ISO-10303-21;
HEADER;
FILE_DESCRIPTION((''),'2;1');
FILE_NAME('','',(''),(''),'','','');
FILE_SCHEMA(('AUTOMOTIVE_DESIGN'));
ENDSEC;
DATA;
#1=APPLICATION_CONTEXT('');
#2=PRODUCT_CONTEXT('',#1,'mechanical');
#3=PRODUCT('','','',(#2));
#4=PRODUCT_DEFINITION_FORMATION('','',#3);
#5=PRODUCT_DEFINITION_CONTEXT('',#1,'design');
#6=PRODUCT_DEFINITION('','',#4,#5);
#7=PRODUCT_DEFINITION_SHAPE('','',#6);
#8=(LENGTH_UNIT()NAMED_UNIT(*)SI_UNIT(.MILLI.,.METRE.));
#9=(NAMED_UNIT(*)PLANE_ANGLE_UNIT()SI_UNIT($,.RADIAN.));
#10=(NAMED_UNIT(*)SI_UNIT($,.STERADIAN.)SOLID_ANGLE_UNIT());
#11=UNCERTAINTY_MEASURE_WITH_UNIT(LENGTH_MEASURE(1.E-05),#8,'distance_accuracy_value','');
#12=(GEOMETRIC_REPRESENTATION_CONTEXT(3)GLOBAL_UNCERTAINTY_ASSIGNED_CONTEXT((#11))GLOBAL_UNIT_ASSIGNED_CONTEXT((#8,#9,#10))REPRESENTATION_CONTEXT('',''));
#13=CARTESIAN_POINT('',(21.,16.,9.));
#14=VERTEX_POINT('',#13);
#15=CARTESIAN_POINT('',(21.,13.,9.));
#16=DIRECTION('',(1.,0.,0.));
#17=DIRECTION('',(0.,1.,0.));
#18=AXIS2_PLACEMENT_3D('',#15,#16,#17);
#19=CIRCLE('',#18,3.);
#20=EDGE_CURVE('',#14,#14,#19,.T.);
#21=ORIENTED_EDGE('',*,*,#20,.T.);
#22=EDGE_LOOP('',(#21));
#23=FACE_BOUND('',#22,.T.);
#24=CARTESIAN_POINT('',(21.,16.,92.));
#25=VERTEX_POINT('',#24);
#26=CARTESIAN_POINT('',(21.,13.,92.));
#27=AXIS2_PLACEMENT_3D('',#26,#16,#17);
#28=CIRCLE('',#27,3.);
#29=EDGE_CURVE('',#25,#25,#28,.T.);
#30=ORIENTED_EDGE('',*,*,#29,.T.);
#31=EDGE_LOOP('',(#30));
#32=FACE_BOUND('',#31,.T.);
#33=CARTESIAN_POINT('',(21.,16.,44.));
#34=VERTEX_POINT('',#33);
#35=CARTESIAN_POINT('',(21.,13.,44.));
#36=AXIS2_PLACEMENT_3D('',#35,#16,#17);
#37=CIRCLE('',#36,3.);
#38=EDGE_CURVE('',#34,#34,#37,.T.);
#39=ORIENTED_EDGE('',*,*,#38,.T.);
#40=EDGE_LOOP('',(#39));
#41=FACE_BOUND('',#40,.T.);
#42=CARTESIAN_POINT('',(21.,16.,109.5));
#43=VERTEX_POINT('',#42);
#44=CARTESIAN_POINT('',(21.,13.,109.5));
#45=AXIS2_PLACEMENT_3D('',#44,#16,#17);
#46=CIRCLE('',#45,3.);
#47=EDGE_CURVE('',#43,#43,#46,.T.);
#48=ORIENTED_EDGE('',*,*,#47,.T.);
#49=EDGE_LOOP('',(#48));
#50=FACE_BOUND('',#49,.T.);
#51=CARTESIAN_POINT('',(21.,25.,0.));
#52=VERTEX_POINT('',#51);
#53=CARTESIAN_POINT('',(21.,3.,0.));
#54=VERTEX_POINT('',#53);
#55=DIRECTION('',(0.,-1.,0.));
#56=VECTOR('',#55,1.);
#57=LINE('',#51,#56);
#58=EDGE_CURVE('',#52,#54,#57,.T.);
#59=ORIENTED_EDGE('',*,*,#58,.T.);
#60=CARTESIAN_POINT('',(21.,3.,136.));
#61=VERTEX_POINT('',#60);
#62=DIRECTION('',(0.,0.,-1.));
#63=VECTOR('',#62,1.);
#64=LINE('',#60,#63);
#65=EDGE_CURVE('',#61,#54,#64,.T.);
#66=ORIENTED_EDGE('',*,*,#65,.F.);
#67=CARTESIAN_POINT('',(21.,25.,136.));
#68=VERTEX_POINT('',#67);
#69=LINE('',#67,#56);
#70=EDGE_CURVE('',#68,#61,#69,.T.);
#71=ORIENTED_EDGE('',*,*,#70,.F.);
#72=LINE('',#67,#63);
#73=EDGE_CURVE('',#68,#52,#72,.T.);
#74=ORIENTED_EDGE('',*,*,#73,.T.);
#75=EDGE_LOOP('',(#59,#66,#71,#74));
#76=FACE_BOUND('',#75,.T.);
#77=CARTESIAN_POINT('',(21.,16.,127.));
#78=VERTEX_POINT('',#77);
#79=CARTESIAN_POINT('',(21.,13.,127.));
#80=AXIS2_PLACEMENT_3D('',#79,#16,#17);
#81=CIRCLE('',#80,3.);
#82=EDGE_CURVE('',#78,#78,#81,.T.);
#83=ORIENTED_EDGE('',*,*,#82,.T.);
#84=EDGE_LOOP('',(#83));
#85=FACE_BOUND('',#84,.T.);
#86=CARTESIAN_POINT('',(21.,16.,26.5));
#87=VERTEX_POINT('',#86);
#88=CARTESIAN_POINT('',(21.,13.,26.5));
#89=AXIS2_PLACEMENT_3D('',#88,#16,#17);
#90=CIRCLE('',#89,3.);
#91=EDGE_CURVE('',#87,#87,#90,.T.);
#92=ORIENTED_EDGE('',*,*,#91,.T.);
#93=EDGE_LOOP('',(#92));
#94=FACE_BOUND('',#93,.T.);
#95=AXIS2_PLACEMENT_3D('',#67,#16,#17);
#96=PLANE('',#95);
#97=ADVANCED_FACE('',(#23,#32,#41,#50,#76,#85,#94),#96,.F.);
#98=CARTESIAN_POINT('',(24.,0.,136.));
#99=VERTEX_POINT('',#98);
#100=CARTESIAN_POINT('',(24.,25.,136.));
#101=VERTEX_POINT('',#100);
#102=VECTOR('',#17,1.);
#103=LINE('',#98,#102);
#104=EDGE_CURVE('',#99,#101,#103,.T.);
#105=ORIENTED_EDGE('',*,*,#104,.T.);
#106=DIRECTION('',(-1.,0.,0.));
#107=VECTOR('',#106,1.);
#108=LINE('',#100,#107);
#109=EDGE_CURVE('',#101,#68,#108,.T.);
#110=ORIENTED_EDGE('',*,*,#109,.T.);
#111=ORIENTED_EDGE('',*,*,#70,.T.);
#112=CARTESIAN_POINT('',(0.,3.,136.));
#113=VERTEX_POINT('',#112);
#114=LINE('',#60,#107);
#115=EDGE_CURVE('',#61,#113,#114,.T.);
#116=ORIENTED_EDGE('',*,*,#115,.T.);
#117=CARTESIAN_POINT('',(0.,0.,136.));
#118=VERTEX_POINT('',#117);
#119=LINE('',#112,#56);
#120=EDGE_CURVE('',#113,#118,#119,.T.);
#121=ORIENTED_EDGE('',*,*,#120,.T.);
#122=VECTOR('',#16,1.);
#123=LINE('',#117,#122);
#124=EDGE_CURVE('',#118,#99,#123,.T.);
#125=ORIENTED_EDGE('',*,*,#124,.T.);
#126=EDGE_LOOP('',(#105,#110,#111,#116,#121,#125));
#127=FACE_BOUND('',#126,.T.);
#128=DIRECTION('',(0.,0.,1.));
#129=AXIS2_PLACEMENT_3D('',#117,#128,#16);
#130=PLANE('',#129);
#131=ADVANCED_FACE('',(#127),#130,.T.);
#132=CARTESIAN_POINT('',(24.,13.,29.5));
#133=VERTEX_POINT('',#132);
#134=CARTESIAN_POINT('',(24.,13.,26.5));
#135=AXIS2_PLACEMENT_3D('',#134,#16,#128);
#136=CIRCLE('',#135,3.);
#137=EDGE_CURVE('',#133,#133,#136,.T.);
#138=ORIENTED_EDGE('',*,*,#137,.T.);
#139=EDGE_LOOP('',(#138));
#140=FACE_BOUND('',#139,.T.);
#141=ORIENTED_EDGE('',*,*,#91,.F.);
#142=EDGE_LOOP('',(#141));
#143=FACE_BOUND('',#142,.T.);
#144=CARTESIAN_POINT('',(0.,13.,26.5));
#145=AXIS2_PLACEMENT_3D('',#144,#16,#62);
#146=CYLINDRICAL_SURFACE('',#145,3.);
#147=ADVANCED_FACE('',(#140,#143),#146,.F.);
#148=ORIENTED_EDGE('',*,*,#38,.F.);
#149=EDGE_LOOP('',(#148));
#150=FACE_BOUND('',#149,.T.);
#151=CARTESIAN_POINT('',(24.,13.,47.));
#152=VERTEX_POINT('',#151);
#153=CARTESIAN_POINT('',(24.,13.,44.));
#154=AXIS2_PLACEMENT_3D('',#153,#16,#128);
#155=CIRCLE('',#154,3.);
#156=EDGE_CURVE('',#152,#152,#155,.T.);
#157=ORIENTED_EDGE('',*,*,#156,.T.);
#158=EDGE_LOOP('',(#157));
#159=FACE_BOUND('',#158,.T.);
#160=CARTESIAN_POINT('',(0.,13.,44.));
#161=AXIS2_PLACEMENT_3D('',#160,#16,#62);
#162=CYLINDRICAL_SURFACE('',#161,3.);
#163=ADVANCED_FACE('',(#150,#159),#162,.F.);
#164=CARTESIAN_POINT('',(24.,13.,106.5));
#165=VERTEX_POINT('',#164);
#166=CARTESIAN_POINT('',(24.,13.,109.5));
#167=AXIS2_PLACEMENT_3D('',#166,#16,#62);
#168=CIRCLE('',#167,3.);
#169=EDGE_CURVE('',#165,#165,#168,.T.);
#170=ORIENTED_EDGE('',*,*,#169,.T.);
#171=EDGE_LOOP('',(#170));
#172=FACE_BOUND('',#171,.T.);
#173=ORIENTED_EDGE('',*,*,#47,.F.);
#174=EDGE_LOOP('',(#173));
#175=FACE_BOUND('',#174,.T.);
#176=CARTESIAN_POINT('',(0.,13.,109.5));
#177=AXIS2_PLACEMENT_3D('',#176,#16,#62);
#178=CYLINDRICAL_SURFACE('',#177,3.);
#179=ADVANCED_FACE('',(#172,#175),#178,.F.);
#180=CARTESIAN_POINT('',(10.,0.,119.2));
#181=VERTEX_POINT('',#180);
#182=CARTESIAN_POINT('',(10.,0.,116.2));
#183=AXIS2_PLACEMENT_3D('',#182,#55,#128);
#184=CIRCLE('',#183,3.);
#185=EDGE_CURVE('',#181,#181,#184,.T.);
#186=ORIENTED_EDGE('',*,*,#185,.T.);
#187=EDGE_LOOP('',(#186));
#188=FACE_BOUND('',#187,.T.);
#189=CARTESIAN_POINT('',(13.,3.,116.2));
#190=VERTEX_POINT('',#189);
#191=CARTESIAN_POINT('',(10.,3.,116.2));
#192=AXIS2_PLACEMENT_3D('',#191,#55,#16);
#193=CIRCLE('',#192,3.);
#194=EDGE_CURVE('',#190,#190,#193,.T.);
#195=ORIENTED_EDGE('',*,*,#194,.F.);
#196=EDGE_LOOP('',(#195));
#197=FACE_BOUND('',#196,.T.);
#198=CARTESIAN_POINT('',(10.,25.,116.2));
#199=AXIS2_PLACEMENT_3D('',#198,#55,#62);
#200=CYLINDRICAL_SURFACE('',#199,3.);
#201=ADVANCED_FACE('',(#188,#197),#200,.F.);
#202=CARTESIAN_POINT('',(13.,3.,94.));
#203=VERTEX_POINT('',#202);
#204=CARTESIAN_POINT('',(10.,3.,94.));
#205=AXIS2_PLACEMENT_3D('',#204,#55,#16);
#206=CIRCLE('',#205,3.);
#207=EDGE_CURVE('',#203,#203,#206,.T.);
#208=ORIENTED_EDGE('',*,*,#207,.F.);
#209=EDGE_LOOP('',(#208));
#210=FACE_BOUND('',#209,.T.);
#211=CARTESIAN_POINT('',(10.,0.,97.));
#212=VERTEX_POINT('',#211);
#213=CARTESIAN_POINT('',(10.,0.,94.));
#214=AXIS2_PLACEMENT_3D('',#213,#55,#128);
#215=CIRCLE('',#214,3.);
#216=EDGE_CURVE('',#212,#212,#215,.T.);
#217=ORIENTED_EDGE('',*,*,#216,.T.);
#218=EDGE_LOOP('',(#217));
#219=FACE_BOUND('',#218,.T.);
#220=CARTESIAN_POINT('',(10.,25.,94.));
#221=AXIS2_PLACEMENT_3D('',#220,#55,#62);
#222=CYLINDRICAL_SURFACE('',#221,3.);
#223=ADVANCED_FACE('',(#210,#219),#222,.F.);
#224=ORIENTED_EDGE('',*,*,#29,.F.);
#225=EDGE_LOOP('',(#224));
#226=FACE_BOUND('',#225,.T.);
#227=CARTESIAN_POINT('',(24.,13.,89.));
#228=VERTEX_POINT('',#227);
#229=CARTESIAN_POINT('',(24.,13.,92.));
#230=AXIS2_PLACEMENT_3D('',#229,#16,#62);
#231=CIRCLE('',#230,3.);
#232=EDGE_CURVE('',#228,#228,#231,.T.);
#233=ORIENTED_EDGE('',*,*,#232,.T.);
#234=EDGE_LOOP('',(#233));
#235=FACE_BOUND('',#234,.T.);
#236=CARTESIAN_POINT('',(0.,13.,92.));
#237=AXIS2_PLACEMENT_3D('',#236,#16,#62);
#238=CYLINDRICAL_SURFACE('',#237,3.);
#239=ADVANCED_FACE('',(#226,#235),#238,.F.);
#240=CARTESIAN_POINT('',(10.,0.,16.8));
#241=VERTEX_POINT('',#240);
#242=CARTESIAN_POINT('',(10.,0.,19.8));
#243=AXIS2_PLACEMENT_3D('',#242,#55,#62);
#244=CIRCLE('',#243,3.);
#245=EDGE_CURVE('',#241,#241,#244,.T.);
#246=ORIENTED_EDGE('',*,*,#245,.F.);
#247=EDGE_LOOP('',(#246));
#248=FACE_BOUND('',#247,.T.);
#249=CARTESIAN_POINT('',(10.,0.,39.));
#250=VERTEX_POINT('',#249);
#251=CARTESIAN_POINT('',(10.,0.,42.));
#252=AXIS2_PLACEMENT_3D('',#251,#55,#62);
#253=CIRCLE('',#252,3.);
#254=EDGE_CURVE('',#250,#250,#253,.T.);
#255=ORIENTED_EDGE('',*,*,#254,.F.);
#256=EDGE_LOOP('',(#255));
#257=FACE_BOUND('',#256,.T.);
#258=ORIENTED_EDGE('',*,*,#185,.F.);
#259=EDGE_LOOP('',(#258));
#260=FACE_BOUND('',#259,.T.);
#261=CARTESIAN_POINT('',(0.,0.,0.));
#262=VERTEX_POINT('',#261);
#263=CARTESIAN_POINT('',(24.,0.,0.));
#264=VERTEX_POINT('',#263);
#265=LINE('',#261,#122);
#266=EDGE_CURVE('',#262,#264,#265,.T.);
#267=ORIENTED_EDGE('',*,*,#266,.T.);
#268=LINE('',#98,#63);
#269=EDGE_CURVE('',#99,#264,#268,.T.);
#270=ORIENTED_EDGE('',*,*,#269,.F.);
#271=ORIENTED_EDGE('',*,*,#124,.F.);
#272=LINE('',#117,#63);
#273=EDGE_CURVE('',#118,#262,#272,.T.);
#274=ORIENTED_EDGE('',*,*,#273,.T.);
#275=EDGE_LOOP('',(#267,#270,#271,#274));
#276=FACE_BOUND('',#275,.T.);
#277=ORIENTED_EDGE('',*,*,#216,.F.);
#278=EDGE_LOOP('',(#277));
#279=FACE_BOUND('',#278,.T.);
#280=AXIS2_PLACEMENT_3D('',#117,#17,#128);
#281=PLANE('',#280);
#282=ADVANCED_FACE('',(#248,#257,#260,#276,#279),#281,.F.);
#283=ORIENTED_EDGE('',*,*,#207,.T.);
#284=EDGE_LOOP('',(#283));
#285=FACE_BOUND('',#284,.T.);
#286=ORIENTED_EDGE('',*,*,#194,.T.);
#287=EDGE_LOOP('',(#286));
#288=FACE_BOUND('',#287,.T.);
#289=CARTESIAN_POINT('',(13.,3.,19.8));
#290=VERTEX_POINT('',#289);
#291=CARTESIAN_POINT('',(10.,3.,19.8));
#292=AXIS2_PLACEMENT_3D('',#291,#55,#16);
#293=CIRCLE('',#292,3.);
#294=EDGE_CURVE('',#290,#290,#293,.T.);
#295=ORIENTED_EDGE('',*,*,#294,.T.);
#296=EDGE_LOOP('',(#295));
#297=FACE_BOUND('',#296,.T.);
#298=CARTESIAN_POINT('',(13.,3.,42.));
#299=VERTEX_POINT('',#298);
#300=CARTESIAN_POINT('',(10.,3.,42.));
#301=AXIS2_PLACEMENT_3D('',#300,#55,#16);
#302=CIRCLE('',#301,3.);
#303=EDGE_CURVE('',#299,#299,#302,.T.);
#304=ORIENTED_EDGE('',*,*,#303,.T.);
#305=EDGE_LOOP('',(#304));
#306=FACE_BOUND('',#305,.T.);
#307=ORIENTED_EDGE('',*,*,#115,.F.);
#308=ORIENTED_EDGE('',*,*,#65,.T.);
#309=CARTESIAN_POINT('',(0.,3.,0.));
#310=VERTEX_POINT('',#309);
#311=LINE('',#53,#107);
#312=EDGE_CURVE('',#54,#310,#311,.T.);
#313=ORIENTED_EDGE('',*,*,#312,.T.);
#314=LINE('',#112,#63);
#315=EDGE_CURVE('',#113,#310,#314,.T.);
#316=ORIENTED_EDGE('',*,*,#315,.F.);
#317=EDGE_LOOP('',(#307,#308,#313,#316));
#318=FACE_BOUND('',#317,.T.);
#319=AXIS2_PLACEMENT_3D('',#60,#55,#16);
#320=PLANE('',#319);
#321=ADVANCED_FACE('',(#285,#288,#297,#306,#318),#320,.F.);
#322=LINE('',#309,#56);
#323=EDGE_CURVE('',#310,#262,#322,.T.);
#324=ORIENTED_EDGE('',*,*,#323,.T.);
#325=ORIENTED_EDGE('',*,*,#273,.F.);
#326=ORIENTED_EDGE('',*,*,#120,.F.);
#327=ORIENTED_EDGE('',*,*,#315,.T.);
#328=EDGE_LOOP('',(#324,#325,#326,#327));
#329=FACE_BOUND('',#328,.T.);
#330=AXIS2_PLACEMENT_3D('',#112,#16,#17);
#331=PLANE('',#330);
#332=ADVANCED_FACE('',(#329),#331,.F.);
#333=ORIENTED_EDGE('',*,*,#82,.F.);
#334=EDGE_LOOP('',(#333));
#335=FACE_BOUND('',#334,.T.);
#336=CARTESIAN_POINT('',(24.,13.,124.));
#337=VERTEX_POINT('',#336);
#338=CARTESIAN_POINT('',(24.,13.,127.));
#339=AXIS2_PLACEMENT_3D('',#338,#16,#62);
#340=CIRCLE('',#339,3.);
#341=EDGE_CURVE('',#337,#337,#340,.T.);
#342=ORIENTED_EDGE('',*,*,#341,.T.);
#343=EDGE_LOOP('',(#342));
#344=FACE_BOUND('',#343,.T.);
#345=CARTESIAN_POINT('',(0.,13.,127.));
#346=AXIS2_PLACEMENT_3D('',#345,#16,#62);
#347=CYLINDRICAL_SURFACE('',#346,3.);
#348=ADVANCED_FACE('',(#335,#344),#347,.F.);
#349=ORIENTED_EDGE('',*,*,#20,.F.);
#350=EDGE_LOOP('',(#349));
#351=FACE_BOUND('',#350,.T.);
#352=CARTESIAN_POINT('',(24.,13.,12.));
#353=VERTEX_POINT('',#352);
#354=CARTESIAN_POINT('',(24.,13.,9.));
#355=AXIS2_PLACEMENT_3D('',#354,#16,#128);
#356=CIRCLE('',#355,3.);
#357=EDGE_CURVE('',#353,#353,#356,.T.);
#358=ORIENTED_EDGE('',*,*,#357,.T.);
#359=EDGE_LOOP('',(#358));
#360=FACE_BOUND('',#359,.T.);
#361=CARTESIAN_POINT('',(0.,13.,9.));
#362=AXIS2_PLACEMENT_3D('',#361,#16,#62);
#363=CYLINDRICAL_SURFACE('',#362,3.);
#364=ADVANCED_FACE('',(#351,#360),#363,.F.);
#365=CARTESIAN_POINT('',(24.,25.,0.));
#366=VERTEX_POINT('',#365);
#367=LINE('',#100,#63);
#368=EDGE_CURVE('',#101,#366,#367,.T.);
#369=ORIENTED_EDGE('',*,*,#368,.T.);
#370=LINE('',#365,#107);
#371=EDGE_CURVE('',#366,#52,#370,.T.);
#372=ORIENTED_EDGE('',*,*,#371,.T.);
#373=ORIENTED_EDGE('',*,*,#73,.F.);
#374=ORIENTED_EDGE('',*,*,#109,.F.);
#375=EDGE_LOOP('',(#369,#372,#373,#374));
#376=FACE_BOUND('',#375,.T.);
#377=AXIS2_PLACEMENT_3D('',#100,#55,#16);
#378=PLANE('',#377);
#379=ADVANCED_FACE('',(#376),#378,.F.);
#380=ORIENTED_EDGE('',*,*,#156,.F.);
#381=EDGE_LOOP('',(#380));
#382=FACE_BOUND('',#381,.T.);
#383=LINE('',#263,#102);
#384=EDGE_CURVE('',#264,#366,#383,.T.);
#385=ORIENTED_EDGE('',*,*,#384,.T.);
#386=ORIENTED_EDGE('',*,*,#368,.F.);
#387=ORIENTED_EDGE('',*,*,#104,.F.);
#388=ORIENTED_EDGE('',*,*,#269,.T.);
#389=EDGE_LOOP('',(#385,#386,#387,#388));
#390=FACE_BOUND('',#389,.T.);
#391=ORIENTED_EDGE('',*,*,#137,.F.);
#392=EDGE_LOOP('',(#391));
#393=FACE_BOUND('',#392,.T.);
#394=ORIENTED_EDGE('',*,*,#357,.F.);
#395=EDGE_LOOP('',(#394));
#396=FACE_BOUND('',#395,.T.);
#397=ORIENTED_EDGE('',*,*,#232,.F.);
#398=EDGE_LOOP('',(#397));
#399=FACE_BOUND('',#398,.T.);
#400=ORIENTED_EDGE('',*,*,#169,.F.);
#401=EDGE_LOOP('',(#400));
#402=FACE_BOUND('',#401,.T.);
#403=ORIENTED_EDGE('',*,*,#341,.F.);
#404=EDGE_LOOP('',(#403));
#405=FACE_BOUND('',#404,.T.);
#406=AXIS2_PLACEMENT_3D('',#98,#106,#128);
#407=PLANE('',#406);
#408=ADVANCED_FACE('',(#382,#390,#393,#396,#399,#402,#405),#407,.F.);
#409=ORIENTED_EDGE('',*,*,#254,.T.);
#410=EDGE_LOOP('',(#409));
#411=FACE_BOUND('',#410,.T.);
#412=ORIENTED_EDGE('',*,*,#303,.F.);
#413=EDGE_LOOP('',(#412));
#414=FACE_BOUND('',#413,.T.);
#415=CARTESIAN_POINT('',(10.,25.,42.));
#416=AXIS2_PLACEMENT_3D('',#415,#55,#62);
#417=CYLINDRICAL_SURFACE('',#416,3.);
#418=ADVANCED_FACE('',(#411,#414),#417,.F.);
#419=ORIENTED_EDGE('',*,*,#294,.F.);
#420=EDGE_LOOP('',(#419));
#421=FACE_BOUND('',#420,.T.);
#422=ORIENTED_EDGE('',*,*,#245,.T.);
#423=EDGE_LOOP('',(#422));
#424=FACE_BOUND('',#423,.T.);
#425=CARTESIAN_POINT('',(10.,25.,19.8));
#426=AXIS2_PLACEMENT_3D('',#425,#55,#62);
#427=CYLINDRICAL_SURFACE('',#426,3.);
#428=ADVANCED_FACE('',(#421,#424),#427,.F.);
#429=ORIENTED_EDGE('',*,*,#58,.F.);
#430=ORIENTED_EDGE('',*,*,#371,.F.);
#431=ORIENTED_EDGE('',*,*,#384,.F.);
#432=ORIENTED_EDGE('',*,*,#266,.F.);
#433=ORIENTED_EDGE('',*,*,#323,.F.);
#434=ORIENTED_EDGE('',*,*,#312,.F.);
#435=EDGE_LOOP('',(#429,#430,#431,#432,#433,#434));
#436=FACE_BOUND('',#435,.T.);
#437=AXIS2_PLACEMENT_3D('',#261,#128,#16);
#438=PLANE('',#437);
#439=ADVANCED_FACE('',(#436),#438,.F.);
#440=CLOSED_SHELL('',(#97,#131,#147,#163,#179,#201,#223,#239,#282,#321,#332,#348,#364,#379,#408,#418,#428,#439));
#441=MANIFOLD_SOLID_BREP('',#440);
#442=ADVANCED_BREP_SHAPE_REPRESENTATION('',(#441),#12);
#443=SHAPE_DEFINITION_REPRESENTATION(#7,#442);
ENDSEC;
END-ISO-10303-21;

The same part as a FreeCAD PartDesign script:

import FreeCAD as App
import Part
import Sketcher
from FreeCAD import Vector

doc = App.newDocument("Part")
params = doc.addObject("Spreadsheet::Sheet", "Params")
for row, (alias, value) in enumerate([
    ("sketch1_width", "24 mm"),
    ("sketch1_width2", "3 mm"),
    ("sketch1_height", "25 mm"),
    ("pad1_length", "136 mm"),
    ("sketch2_diameter", "6 mm"),
    ("sketch3_diameter", "6 mm"),
], start=1):
    params.set(f"A{row}", alias)
    params.set(f"B{row}", "=" + value)
    params.setAlias(f"B{row}", alias)

body = doc.addObject("PartDesign::Body", "Body")

# Sketch on XY plane
sketch1 = body.newObject("Sketcher::SketchObject", "Sketch")
sketch1.AttachmentSupport = (doc.getObject("XY_Plane"), [""])
sketch1.MapMode = "FlatFace"
sketch1.addGeometry(Part.LineSegment(Vector(0, 0, 0), Vector(24, 0, 0)), False)
sketch1.addGeometry(Part.LineSegment(Vector(24, 0, 0), Vector(24, 25, 0)), False)
sketch1.addGeometry(Part.LineSegment(Vector(24, 25, 0), Vector(21, 25, 0)), False)
sketch1.addGeometry(Part.LineSegment(Vector(21, 25, 0), Vector(21, 3, 0)), False)
sketch1.addGeometry(Part.LineSegment(Vector(21, 3, 0), Vector(0, 3, 0)), False)
sketch1.addGeometry(Part.LineSegment(Vector(0, 3, 0), Vector(0, 0, 0)), False)
sketch1.addConstraint(Sketcher.Constraint("Coincident", 0, 2, 1, 1))
sketch1.addConstraint(Sketcher.Constraint("Coincident", 1, 2, 2, 1))
sketch1.addConstraint(Sketcher.Constraint("Coincident", 2, 2, 3, 1))
sketch1.addConstraint(Sketcher.Constraint("Coincident", 3, 2, 4, 1))
sketch1.addConstraint(Sketcher.Constraint("Coincident", 4, 2, 5, 1))
sketch1.addConstraint(Sketcher.Constraint("Coincident", 5, 2, 0, 1))
sketch1.addConstraint(Sketcher.Constraint("Horizontal", 0))
sketch1.addConstraint(Sketcher.Constraint("Vertical", 1))
sketch1.addConstraint(Sketcher.Constraint("Horizontal", 2))
sketch1.addConstraint(Sketcher.Constraint("Vertical", 3))
sketch1.addConstraint(Sketcher.Constraint("Horizontal", 4))
sketch1.addConstraint(Sketcher.Constraint("Vertical", 5))
sketch1.addConstraint(Sketcher.Constraint("Coincident", 5, 2, -1, 1))
sketch1.addConstraint(Sketcher.Constraint("Equal", 2, 5))
sketch1.addConstraint(Sketcher.Constraint("DistanceX", 0, 1, 0, 2, 24.0))
sketch1.addConstraint(Sketcher.Constraint("DistanceX", 2, 2, 2, 1, 3.0))
sketch1.addConstraint(Sketcher.Constraint("DistanceY", 1, 1, 1, 2, 25.0))
sketch1.setExpression("Constraints[14]", "Params.sketch1_width")
sketch1.setExpression("Constraints[15]", "Params.sketch1_width2")
sketch1.setExpression("Constraints[16]", "Params.sketch1_height")
pad1 = body.newObject("PartDesign::Pad", "Pad")
pad1.Profile = sketch1
pad1.setExpression("Length", "Params.pad1_length")

# Sketch on YZ plane
sketch2 = body.newObject("Sketcher::SketchObject", "Sketch001")
sketch2.AttachmentSupport = (doc.getObject("YZ_Plane"), [""])
sketch2.MapMode = "FlatFace"
sketch2.AttachmentOffset = App.Placement(Vector(0, 0, 24), App.Rotation())
sketch2.addGeometry(Part.Circle(Vector(13, 127, 0), Vector(0, 0, 1), 3), False)
sketch2.addGeometry(Part.Circle(Vector(13, 109.5, 0), Vector(0, 0, 1), 3), False)
sketch2.addGeometry(Part.Circle(Vector(13, 92, 0), Vector(0, 0, 1), 3), False)
sketch2.addGeometry(Part.Circle(Vector(13, 9, 0), Vector(0, 0, 1), 3), False)
sketch2.addGeometry(Part.Circle(Vector(13, 26.5, 0), Vector(0, 0, 1), 3), False)
sketch2.addGeometry(Part.Circle(Vector(13, 44, 0), Vector(0, 0, 1), 3), False)
sketch2.addConstraint(Sketcher.Constraint("Equal", 0, 1))
sketch2.addConstraint(Sketcher.Constraint("Equal", 1, 2))
sketch2.addConstraint(Sketcher.Constraint("Equal", 2, 3))
sketch2.addConstraint(Sketcher.Constraint("Equal", 3, 4))
sketch2.addConstraint(Sketcher.Constraint("Equal", 4, 5))
sketch2.addConstraint(Sketcher.Constraint("Vertical", 0, 3, 1, 3))
sketch2.addConstraint(Sketcher.Constraint("Vertical", 1, 3, 2, 3))
sketch2.addConstraint(Sketcher.Constraint("Vertical", 2, 3, 3, 3))
sketch2.addConstraint(Sketcher.Constraint("Vertical", 3, 3, 4, 3))
sketch2.addConstraint(Sketcher.Constraint("Vertical", 4, 3, 5, 3))
sketch2.addConstraint(Sketcher.Constraint("Diameter", 0, 6.0))
sketch2.addConstraint(Sketcher.Constraint("DistanceX", -1, 1, 0, 3, 13.0))
sketch2.addConstraint(Sketcher.Constraint("DistanceY", -1, 1, 0, 3, 127.0))
sketch2.addConstraint(Sketcher.Constraint("DistanceY", -1, 1, 2, 3, 92.0))
sketch2.addConstraint(Sketcher.Constraint("DistanceY", -1, 1, 3, 3, 9.0))
sketch2.addConstraint(Sketcher.Constraint("DistanceY", -1, 1, 5, 3, 44.0))
sketch2.addConstraint(Sketcher.Constraint("DistanceY", 4, 3, 1, 3, 83.0))
sketch2.addConstraint(Sketcher.Constraint("DistanceY", -1, 1, 1, 3, 109.5))
sketch2.setExpression("Constraints[10]", "Params.sketch2_diameter")
pocket1 = body.newObject("PartDesign::Pocket", "Pocket")
pocket1.Profile = sketch2
pocket1.Type = "ThroughAll"

# Sketch on XZ plane
sketch3 = body.newObject("Sketcher::SketchObject", "Sketch002")
sketch3.AttachmentSupport = (doc.getObject("XZ_Plane"), [""])
sketch3.MapMode = "FlatFace"
sketch3.addGeometry(Part.Circle(Vector(10, 19.8, 0), Vector(0, 0, 1), 3), False)
sketch3.addGeometry(Part.Circle(Vector(10, 42, 0), Vector(0, 0, 1), 3), False)
sketch3.addGeometry(Part.Circle(Vector(10, 116.2, 0), Vector(0, 0, 1), 3), False)
sketch3.addGeometry(Part.Circle(Vector(10, 94, 0), Vector(0, 0, 1), 3), False)
sketch3.addConstraint(Sketcher.Constraint("Equal", 0, 1))
sketch3.addConstraint(Sketcher.Constraint("Equal", 1, 2))
sketch3.addConstraint(Sketcher.Constraint("Equal", 2, 3))
sketch3.addConstraint(Sketcher.Constraint("Vertical", 0, 3, 1, 3))
sketch3.addConstraint(Sketcher.Constraint("Vertical", 1, 3, 2, 3))
sketch3.addConstraint(Sketcher.Constraint("Vertical", 2, 3, 3, 3))
sketch3.addConstraint(Sketcher.Constraint("Diameter", 0, 6.0))
sketch3.addConstraint(Sketcher.Constraint("DistanceX", -1, 1, 0, 3, 10.0))
sketch3.addConstraint(Sketcher.Constraint("DistanceY", -1, 1, 1, 3, 42.0))
sketch3.addConstraint(Sketcher.Constraint("DistanceY", -1, 1, 3, 3, 94.0))
sketch3.addConstraint(Sketcher.Constraint("DistanceY", -1, 1, 0, 3, 19.8))
sketch3.addConstraint(Sketcher.Constraint("DistanceY", -1, 1, 2, 3, 116.2))
sketch3.setExpression("Constraints[6]", "Params.sketch3_diameter")
pocket2 = body.newObject("PartDesign::Pocket", "Pocket001")
pocket2.Profile = sketch3
pocket2.Type = "ThroughAll"

doc.recompute()
